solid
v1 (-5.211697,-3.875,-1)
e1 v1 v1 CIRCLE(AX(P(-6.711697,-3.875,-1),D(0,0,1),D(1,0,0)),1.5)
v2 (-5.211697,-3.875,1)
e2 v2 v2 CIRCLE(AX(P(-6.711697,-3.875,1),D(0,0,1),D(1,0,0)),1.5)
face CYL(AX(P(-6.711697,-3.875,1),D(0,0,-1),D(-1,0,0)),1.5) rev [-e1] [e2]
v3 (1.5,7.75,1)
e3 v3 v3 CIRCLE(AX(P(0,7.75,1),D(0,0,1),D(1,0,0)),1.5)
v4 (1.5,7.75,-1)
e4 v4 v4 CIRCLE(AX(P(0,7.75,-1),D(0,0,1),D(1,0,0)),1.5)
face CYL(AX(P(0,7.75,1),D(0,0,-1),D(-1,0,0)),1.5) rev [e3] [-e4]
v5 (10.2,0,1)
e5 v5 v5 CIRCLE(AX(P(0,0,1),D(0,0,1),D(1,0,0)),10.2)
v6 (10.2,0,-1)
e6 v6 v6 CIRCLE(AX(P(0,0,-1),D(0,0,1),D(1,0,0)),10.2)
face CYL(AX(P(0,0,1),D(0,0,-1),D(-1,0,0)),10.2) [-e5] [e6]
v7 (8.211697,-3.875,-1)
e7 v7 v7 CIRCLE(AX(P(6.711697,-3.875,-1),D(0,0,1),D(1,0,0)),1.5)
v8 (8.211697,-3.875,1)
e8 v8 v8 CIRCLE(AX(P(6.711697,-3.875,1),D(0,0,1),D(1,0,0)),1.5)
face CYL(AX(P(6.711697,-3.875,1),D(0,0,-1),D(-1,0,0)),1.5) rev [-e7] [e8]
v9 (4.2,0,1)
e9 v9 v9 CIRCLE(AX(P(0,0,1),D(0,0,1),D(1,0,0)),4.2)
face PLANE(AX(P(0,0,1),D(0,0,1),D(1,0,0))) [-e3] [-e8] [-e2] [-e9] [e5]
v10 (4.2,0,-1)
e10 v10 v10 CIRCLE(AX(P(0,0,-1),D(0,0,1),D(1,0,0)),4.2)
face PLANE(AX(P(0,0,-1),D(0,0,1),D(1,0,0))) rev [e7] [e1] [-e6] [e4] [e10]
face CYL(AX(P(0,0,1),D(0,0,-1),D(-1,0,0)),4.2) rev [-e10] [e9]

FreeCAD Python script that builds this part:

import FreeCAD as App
import Part
import Sketcher
Q = App.Units.Quantity

doc = App.newDocument("Part")
params = doc.addObject("Spreadsheet::Sheet", "Params")
for row, (alias, value) in enumerate([
    ("sketch1_diameter", "3 mm"),
    ("sketch1_diameter2", "20.4 mm"),
    ("sketch1_diameter3", "8.4 mm"),
    ("pad1_length", "2 mm"),
], start=1):
    params.set(f"A{row}", alias)
    params.set(f"B{row}", "=" + value)
    params.setAlias(f"B{row}", alias)

body = doc.addObject("PartDesign::Body", "Body")

# Sketch on XY plane
sketch1 = doc.addObject("Sketcher::SketchObject", "Sketch")
body.addObject(sketch1)
sketch1.AttachmentSupport = (doc.XY_Plane, [""])
sketch1.MapMode = "FlatFace"
sketch1.addGeometry([
    Part.Circle(App.Vector(0, 0, 0), App.Vector(0, 0, 1), 10.2),  # 0
    Part.Circle(App.Vector(-6.7, -3.9, 0), App.Vector(0, 0, 1), 1.5),  # 1
    Part.Circle(App.Vector(6.7, -3.9, 0), App.Vector(0, 0, 1), 1.5),  # 2
    Part.Circle(App.Vector(0, 0, 0), App.Vector(0, 0, 1), 4.2),  # 3
    Part.Circle(App.Vector(0, 7.8, 0), App.Vector(0, 0, 1), 1.5),  # 4
], False)
sketch1.addConstraint([
    Sketcher.Constraint("Coincident", 0, 3, -1, 1),
    Sketcher.Constraint("Coincident", 3, 3, -1, 1),
    Sketcher.Constraint("Equal", 1, 2),
    Sketcher.Constraint("Equal", 2, 4),
    Sketcher.Constraint("Symmetric", 1, 3, 2, 3, -2),
    Sketcher.Constraint("PointOnObject", 4, 3, -2),
    Sketcher.Constraint("Diameter", 1, Q("3 mm")),
    Sketcher.Constraint("Diameter", 0, Q("20.4 mm")),
    Sketcher.Constraint("Diameter", 3, Q("8.4 mm")),
    Sketcher.Constraint("DistanceY", -1, 1, 4, 3, Q("7.75 mm")),
    Sketcher.Constraint("DistanceY", 1, 3, -1, 1, Q("3.875 mm")),
    Sketcher.Constraint("DistanceX", 1, 3, -1, 1, Q("6.711697 mm")),
])
sketch1.setExpression("Constraints[6]", "Params.sketch1_diameter")
sketch1.setExpression("Constraints[7]", "Params.sketch1_diameter2")
sketch1.setExpression("Constraints[8]", "Params.sketch1_diameter3")
pad1 = doc.addObject("PartDesign::Pad", "Pad")
body.addObject(pad1)
pad1.Profile = sketch1
pad1.setExpression("Length", "Params.pad1_length")
pad1.Midplane = True

doc.recompute()
